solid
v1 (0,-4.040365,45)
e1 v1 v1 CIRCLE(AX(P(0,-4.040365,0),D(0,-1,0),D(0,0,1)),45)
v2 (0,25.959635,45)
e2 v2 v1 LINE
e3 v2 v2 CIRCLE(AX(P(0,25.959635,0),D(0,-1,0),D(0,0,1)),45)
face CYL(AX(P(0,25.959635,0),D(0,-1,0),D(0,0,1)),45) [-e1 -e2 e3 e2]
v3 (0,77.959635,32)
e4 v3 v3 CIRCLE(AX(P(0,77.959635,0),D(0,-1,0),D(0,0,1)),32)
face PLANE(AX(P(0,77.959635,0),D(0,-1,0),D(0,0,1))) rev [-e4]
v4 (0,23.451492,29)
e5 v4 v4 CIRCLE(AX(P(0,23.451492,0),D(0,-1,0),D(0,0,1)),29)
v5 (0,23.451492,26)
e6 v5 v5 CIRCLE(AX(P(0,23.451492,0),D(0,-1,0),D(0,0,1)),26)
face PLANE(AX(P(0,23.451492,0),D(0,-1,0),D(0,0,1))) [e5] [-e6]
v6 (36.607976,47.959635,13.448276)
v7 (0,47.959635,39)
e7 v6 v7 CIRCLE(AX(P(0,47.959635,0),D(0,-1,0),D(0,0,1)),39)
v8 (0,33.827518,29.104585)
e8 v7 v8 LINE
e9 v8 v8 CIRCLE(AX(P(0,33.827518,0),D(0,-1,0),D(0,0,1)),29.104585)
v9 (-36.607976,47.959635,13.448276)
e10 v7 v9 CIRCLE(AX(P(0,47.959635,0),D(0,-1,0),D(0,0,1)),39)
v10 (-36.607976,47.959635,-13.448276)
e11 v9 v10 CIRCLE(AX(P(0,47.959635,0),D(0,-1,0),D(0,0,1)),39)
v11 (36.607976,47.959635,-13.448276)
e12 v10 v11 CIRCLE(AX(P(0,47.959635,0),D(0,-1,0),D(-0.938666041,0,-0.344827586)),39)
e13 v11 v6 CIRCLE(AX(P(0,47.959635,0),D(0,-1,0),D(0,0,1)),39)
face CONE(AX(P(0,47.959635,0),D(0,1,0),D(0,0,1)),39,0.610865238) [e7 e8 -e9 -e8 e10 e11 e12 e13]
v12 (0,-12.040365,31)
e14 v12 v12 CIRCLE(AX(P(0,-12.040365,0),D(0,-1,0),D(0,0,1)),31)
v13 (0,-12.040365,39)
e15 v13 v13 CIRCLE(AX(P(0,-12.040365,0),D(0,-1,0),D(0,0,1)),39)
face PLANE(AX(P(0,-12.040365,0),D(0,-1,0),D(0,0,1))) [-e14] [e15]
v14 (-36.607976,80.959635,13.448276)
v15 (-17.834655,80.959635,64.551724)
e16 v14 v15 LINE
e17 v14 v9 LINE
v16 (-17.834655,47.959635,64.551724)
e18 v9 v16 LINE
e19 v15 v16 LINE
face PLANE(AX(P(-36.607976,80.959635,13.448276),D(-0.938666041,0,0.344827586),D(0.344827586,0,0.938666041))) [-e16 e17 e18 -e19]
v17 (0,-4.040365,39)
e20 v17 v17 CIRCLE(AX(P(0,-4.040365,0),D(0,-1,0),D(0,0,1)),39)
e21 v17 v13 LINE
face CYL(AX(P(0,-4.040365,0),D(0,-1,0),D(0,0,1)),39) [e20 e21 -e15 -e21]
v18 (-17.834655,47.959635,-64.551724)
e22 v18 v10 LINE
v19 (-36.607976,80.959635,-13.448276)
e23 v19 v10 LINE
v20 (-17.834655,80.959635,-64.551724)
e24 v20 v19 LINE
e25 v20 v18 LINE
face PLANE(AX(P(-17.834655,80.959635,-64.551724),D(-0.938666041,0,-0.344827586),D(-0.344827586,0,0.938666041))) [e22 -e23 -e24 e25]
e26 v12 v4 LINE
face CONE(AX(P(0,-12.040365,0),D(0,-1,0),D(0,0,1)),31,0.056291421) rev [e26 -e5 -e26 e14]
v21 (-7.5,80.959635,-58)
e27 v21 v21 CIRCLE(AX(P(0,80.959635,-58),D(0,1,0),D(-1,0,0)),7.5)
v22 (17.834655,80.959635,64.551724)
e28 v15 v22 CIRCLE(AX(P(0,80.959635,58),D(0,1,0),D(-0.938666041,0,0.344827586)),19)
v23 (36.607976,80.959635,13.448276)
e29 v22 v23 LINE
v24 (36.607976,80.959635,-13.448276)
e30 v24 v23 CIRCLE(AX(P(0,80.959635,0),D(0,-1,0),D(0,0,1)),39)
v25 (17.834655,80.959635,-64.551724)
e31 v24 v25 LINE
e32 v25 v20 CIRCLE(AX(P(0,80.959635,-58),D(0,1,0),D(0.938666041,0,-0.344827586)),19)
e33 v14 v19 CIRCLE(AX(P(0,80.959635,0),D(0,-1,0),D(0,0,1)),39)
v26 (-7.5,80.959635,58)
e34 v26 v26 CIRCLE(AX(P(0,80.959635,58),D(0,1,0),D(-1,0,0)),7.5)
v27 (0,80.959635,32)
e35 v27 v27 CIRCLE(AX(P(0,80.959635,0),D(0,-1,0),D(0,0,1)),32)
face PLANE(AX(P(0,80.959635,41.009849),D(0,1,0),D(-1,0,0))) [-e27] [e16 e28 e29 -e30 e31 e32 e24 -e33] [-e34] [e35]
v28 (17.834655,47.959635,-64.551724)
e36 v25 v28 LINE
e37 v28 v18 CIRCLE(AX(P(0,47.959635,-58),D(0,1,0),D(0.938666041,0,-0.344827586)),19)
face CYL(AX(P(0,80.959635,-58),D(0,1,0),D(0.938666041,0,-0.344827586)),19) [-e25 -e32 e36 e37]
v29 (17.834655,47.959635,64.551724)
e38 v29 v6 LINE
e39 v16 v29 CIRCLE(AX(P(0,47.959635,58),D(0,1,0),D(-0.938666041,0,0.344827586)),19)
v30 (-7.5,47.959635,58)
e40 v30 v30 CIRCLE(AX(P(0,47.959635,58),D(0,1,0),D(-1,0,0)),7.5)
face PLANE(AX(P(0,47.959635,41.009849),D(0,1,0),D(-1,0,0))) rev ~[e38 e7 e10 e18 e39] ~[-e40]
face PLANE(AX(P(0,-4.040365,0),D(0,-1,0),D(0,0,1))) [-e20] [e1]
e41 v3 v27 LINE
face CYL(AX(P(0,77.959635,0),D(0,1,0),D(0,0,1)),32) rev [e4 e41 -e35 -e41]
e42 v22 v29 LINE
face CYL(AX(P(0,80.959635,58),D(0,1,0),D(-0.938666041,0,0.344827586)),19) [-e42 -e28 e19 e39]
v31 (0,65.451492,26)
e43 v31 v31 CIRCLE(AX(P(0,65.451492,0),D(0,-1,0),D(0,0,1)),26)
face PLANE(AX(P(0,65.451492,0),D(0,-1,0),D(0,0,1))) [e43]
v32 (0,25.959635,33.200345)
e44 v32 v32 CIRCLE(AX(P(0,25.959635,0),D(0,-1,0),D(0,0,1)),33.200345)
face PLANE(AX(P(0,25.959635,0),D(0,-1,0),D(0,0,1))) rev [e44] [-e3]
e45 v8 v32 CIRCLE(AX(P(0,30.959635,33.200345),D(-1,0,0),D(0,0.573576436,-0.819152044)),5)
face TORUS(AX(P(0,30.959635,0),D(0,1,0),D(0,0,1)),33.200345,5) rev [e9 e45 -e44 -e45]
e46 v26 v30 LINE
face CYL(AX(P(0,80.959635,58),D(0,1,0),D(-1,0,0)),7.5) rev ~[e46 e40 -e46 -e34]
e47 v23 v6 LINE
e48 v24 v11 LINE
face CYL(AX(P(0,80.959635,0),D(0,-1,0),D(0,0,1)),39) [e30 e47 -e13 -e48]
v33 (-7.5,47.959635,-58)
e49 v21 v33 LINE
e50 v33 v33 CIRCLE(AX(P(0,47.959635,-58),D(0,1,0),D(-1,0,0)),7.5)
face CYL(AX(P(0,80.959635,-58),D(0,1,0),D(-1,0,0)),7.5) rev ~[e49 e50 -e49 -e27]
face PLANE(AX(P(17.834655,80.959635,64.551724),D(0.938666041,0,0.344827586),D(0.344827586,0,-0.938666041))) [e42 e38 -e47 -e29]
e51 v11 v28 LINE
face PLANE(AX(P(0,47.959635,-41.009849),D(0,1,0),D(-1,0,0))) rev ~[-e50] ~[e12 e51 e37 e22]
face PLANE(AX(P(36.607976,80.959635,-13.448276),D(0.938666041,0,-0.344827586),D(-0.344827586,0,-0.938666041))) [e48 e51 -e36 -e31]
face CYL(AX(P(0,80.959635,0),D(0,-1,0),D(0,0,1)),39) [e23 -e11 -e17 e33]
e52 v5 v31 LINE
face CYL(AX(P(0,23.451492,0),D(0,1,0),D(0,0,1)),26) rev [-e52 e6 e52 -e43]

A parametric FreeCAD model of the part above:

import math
import FreeCAD as App
import Part
import Sketcher
Q = App.Units.Quantity

doc = App.newDocument("Part")
params = doc.addObject("Spreadsheet::Sheet", "Params")
for row, (alias, value) in enumerate([
    ("sketch1_radius", "5 mm"),
    ("sketch1_width", "42 mm"),
    ("sketch1_width2", "3 mm"),
    ("sketch1_width3", "33 mm"),
    ("sketch1_width4", "30 mm"),
    ("revolution_angle", "360 deg"),
    ("sketch2_diameter", "15 mm"),
    ("sketch2_radius", "19 mm"),
    ("sketch2_radius2", "39 mm"),
    ("pad1_length", "33 mm"),
], start=1):
    params.set(f"A{row}", alias)
    params.set(f"B{row}", "=" + value)
    params.setAlias(f"B{row}", alias)

body = doc.addObject("PartDesign::Body", "Body")

# Sketch on YZ plane
sketch1 = body.newObject("Sketcher::SketchObject", "Sketch")
sketch1.AttachmentSupport = (doc.getObject("YZ_Plane"), [""])
sketch1.MapMode = "FlatFace"
sketch1.addGeometry(Part.LineSegment(App.Vector(-12, 39, 0), App.Vector(-12, 31, 0)), False)
sketch1.addGeometry(Part.LineSegment(App.Vector(-12, 31, 0), App.Vector(23.5, 29, 0)), False)
sketch1.addGeometry(Part.LineSegment(App.Vector(23.5, 29, 0), App.Vector(23.5, 26, 0)), False)
sketch1.addGeometry(Part.LineSegment(App.Vector(23.5, 26, 0), App.Vector(65.5, 26, 0)), False)
sketch1.addGeometry(Part.LineSegment(App.Vector(65.5, 26, 0), App.Vector(65.5, 0, 0)), False)
sketch1.addGeometry(Part.LineSegment(App.Vector(65.5, 0, 0), App.Vector(78, 0, 0)), False)
sketch1.addGeometry(Part.LineSegment(App.Vector(78, 0, 0), App.Vector(78, 32, 0)), False)
sketch1.addGeometry(Part.LineSegment(App.Vector(78, 32, 0), App.Vector(81, 32, 0)), False)
sketch1.addGeometry(Part.LineSegment(App.Vector(81, 32, 0), App.Vector(81, 39, 0)), False)
sketch1.addGeometry(Part.LineSegment(App.Vector(81, 39, 0), App.Vector(48, 39, 0)), False)
sketch1.addGeometry(Part.LineSegment(App.Vector(48, 39, 0), App.Vector(33.8, 29.1, 0)), False)
sketch1.addGeometry(Part.ArcOfCircle(Part.Circle(App.Vector(31, 33.2, 0), App.Vector(0, 0, 1), 5), math.radians(180), math.radians(305)), False)
sketch1.addGeometry(Part.LineSegment(App.Vector(26, 33.2, 0), App.Vector(26, 45, 0)), False)
sketch1.addGeometry(Part.LineSegment(App.Vector(26, 45, 0), App.Vector(-4, 45, 0)), False)
sketch1.addGeometry(Part.LineSegment(App.Vector(-4, 45, 0), App.Vector(-4, 39, 0)), False)
sketch1.addGeometry(Part.LineSegment(App.Vector(-4, 39, 0), App.Vector(-12, 39, 0)), False)
sketch1.addConstraint(Sketcher.Constraint("Coincident", 0, 2, 1, 1))
sketch1.addConstraint(Sketcher.Constraint("Coincident", 1, 2, 2, 1))
sketch1.addConstraint(Sketcher.Constraint("Coincident", 2, 2, 3, 1))
sketch1.addConstraint(Sketcher.Constraint("Coincident", 3, 2, 4, 1))
sketch1.addConstraint(Sketcher.Constraint("Coincident", 4, 2, 5, 1))
sketch1.addConstraint(Sketcher.Constraint("Coincident", 5, 2, 6, 1))
sketch1.addConstraint(Sketcher.Constraint("Coincident", 6, 2, 7, 1))
sketch1.addConstraint(Sketcher.Constraint("Coincident", 7, 2, 8, 1))
sketch1.addConstraint(Sketcher.Constraint("Coincident", 8, 2, 9, 1))
sketch1.addConstraint(Sketcher.Constraint("Coincident", 9, 2, 10, 1))
sketch1.addConstraint(Sketcher.Constraint("Tangent", 10, 2, 11, 2))
sketch1.addConstraint(Sketcher.Constraint("Tangent", 11, 1, 12, 1))
sketch1.addConstraint(Sketcher.Constraint("Coincident", 12, 2, 13, 1))
sketch1.addConstraint(Sketcher.Constraint("Coincident", 13, 2, 14, 1))
sketch1.addConstraint(Sketcher.Constraint("Coincident", 14, 2, 15, 1))
sketch1.addConstraint(Sketcher.Constraint("Coincident", 15, 2, 0, 1))
sketch1.addConstraint(Sketcher.Constraint("Vertical", 0))
sketch1.addConstraint(Sketcher.Constraint("Vertical", 2))
sketch1.addConstraint(Sketcher.Constraint("Horizontal", 3))
sketch1.addConstraint(Sketcher.Constraint("Vertical", 4))
sketch1.addConstraint(Sketcher.Constraint("Horizontal", 5))
sketch1.addConstraint(Sketcher.Constraint("Vertical", 6))
sketch1.addConstraint(Sketcher.Constraint("Horizontal", 7))
sketch1.addConstraint(Sketcher.Constraint("Vertical", 8))
sketch1.addConstraint(Sketcher.Constraint("Horizontal", 9))
sketch1.addConstraint(Sketcher.Constraint("Vertical", 12))
sketch1.addConstraint(Sketcher.Constraint("Horizontal", 13))
sketch1.addConstraint(Sketcher.Constraint("Vertical", 14))
sketch1.addConstraint(Sketcher.Constraint("Horizontal", 15))
sketch1.addConstraint(Sketcher.Constraint("PointOnObject", 4, 2, -1))
sketch1.addConstraint(Sketcher.Constraint("Horizontal", 9, 2, 14, 2))
sketch1.addConstraint(Sketcher.Constraint("Equal", 15, 0))
sketch1.addConstraint(Sketcher.Constraint("Equal", 7, 2))
sketch1.addConstraint(Sketcher.Constraint("Radius", 11, Q("5 mm")))
sketch1.addConstraint(Sketcher.Constraint("DistanceX", 3, 1, 3, 2, Q("42 mm")))
sketch1.addConstraint(Sketcher.Constraint("DistanceX", 7, 1, 7, 2, Q("3 mm")))
sketch1.addConstraint(Sketcher.Constraint("DistanceX", 9, 2, 9, 1, Q("33 mm")))
sketch1.addConstraint(Sketcher.Constraint("DistanceX", 13, 2, 13, 1, Q("30 mm")))
sketch1.addConstraint(Sketcher.Constraint("DistanceX", 15, 2, 15, 1, Q("8 mm")))
sketch1.addConstraint(Sketcher.Constraint("DistanceY", 4, 2, 4, 1, Q("26 mm")))
sketch1.addConstraint(Sketcher.Constraint("DistanceY", 6, 1, 6, 2, Q("32 mm")))
sketch1.addConstraint(Sketcher.Constraint("DistanceY", 8, 1, 8, 2, Q("7 mm")))
sketch1.addConstraint(Sketcher.Constraint("DistanceY", 14, 2, 14, 1, Q("6 mm")))
sketch1.addConstraint(Sketcher.Constraint("Angle", 10, Q("-145 deg")))
sketch1.addConstraint(Sketcher.Constraint("DistanceX", 11, 3, 5, 2, Q("47 mm")))
sketch1.addConstraint(Sketcher.Constraint("DistanceX", 5, 1, 5, 2, Q("12.508143 mm")))
sketch1.addConstraint(Sketcher.Constraint("DistanceX", -1, 1, 11, 3, Q("30.959635 mm")))
sketch1.setExpression("Constraints[33]", "Params.sketch1_radius")
sketch1.setExpression("Constraints[34]", "Params.sketch1_width")
sketch1.setExpression("Constraints[35]", "Params.sketch1_width2")
sketch1.setExpression("Constraints[36]", "Params.sketch1_width3")
sketch1.setExpression("Constraints[37]", "Params.sketch1_width4")
revolution = body.newObject("PartDesign::Revolution", "Revolution")
revolution.Profile = sketch1
revolution.ReferenceAxis = (sketch1, ["H_Axis"])
revolution.setExpression("Angle", "Params.revolution_angle")

# Sketch on XZ plane
sketch2 = body.newObject("Sketcher::SketchObject", "Sketch001")
sketch2.AttachmentSupport = (doc.getObject("XZ_Plane"), [""])
sketch2.MapMode = "FlatFace"
sketch2.AttachmentOffset = App.Placement(App.Vector(0, 0, -80.959635), App.Rotation())
sketch2.addGeometry(Part.LineSegment(App.Vector(-37, 13, 0), App.Vector(-18, 65, 0)), False)
sketch2.addGeometry(Part.ArcOfCircle(Part.Circle(App.Vector(0, 58, 0), App.Vector(0, 0, 1), 19), math.radians(20), math.radians(160)), False)
sketch2.addGeometry(Part.LineSegment(App.Vector(18, 65, 0), App.Vector(37, 13, 0)), False)
sketch2.addGeometry(Part.ArcOfCircle(Part.Circle(App.Vector(0, 0, 0), App.Vector(0, 0, 1), 39), math.radians(20), math.radians(160)), False)
sketch2.addGeometry(Part.Circle(App.Vector(0, 58, 0), App.Vector(0, 0, 1), 8), False)
sketch2.addGeometry(Part.LineSegment(App.Vector(-18, -65, 0), App.Vector(-37, -13, 0)), False)
sketch2.addGeometry(Part.ArcOfCircle(Part.Circle(App.Vector(0, 0, 0), App.Vector(0, 0, 1), 39), math.radians(-160), math.radians(-20)), False)
sketch2.addGeometry(Part.LineSegment(App.Vector(37, -13, 0), App.Vector(18, -65, 0)), False)
sketch2.addGeometry(Part.ArcOfCircle(Part.Circle(App.Vector(0, -58, 0), App.Vector(0, 0, 1), 19), math.radians(-160), math.radians(-20)), False)
sketch2.addGeometry(Part.Circle(App.Vector(0, -58, 0), App.Vector(0, 0, 1), 8), False)
sketch2.addConstraint(Sketcher.Constraint("Tangent", 0, 2, 1, 2))
sketch2.addConstraint(Sketcher.Constraint("Tangent", 1, 1, 2, 1))
sketch2.addConstraint(Sketcher.Constraint("Tangent", 2, 2, 3, 1))
sketch2.addConstraint(Sketcher.Constraint("Tangent", 3, 2, 0, 1))
sketch2.addConstraint(Sketcher.Constraint("Tangent", 5, 2, 6, 1))
sketch2.addConstraint(Sketcher.Constraint("Tangent", 6, 2, 7, 1))
sketch2.addConstraint(Sketcher.Constraint("Tangent", 7, 2, 8, 2))
sketch2.addConstraint(Sketcher.Constraint("Tangent", 8, 1, 5, 1))
sketch2.addConstraint(Sketcher.Constraint("Coincident", 3, 3, -1, 1))
sketch2.addConstraint(Sketcher.Constraint("Coincident", 6, 3, -1, 1))
sketch2.addConstraint(Sketcher.Constraint("Coincident", 4, 3, 1, 3))
sketch2.addConstraint(Sketcher.Constraint("Coincident", 9, 3, 8, 3))
sketch2.addConstraint(Sketcher.Constraint("Equal", 3, 6))
sketch2.addConstraint(Sketcher.Constraint("Equal", 1, 8))
sketch2.addConstraint(Sketcher.Constraint("Equal", 4, 9))
sketch2.addConstraint(Sketcher.Constraint("Symmetric", 1, 3, 8, 3, -1, 1))
sketch2.addConstraint(Sketcher.Constraint("PointOnObject", 1, 3, -2))
sketch2.addConstraint(Sketcher.Constraint("Diameter", 4, Q("15 mm")))
sketch2.addConstraint(Sketcher.Constraint("Radius", 1, Q("19 mm")))
sketch2.addConstraint(Sketcher.Constraint("Radius", 3, Q("39 mm")))
sketch2.addConstraint(Sketcher.Constraint("DistanceY", -1, 1, 1, 3, Q("58 mm")))
sketch2.setExpression("Constraints[17]", "Params.sketch2_diameter")
sketch2.setExpression("Constraints[18]", "Params.sketch2_radius")
sketch2.setExpression("Constraints[19]", "Params.sketch2_radius2")
pad1 = body.newObject("PartDesign::Pad", "Pad")
pad1.Profile = sketch2
pad1.setExpression("Length", "Params.pad1_length")

doc.recompute()
